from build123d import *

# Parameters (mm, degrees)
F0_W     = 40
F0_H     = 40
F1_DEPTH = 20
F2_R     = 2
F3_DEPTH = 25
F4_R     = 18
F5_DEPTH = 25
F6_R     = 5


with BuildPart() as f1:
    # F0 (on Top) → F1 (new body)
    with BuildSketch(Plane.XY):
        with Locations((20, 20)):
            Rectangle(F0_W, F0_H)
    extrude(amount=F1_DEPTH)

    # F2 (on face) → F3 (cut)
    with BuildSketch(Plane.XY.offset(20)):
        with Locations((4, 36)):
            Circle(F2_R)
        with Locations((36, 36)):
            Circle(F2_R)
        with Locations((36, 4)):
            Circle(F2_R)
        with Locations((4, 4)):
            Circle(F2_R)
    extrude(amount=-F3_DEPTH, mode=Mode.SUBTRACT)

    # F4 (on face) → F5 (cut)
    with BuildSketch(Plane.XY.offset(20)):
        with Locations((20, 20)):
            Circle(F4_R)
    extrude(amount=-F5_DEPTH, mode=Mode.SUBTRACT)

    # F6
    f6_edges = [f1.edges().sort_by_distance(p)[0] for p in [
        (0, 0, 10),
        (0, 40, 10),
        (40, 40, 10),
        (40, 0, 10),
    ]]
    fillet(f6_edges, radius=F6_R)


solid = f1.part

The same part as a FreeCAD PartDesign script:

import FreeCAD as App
import Part
import Sketcher
Q = App.Units.Quantity


def edges_at(feature, points):
    """Names of the edges that pass closest to the given points."""
    edges = feature.Shape.Edges
    near = lambda p: min(range(len(edges)), key=lambda i: edges[i].distToShape(Part.Vertex(*p))[0])
    return sorted({f"Edge{near(p) + 1}" for p in points})

doc = App.newDocument("Part")
params = doc.addObject("Spreadsheet::Sheet", "Params")
for row, (alias, value) in enumerate([
    ("sketch1_width", "40 mm"),
    ("pad1_length", "20 mm"),
    ("sketch2_diameter", "4 mm"),
    ("pocket1_length", "25 mm"),
    ("sketch3_diameter", "36 mm"),
    ("pocket2_length", "25 mm"),
    ("fillet_radius", "5 mm"),
], start=1):
    params.set(f"A{row}", alias)
    params.set(f"B{row}", "=" + value)
    params.setAlias(f"B{row}", alias)

body = doc.addObject("PartDesign::Body", "Body")

# Sketch on XY plane
sketch1 = body.newObject("Sketcher::SketchObject", "Sketch")
sketch1.AttachmentSupport = (doc.getObject("XY_Plane"), [""])
sketch1.MapMode = "FlatFace"
sketch1.addGeometry([
    Part.LineSegment(App.Vector(0, 40, 0), App.Vector(0, 0, 0)),
    Part.LineSegment(App.Vector(0, 0, 0), App.Vector(40, 0, 0)),
    Part.LineSegment(App.Vector(40, 0, 0), App.Vector(40, 40, 0)),
    Part.LineSegment(App.Vector(40, 40, 0), App.Vector(0, 40, 0)),
], False)
sketch1.addConstraint([
    Sketcher.Constraint("Coincident", 0, 2, 1, 1),
    Sketcher.Constraint("Coincident", 1, 2, 2, 1),
    Sketcher.Constraint("Coincident", 2, 2, 3, 1),
    Sketcher.Constraint("Coincident", 3, 2, 0, 1),
    Sketcher.Constraint("Vertical", 0),
    Sketcher.Constraint("Horizontal", 1),
    Sketcher.Constraint("Vertical", 2),
    Sketcher.Constraint("Horizontal", 3),
    Sketcher.Constraint("Coincident", 0, 2, -1, 1),
    Sketcher.Constraint("Equal", 3, 0),
    Sketcher.Constraint("DistanceX", 1, 1, 1, 2, Q("40 mm")),
])
sketch1.setExpression("Constraints[10]", "Params.sketch1_width")
pad1 = body.newObject("PartDesign::Pad", "Pad")
pad1.Profile = sketch1
pad1.setExpression("Length", "Params.pad1_length")

# Sketch on XY plane
sketch2 = body.newObject("Sketcher::SketchObject", "Sketch001")
sketch2.AttachmentSupport = (doc.getObject("XY_Plane"), [""])
sketch2.MapMode = "FlatFace"
sketch2.AttachmentOffset = App.Placement(App.Vector(0, 0, 20), App.Rotation())
sketch2.addGeometry([
    Part.Circle(App.Vector(4, 36, 0), App.Vector(0, 0, 1), 2),
    Part.Circle(App.Vector(36, 36, 0), App.Vector(0, 0, 1), 2),
    Part.Circle(App.Vector(36, 4, 0), App.Vector(0, 0, 1), 2),
    Part.Circle(App.Vector(4, 4, 0), App.Vector(0, 0, 1), 2),
], False)
sketch2.addConstraint([
    Sketcher.Constraint("Equal", 0, 1),
    Sketcher.Constraint("Equal", 1, 2),
    Sketcher.Constraint("Equal", 2, 3),
    Sketcher.Constraint("Horizontal", 0, 3, 1, 3),
    Sketcher.Constraint("Horizontal", 2, 3, 3, 3),
    Sketcher.Constraint("Vertical", 1, 3, 2, 3),
    Sketcher.Constraint("Vertical", 0, 3, 3, 3),
    Sketcher.Constraint("Diameter", 0, Q("4 mm")),
    Sketcher.Constraint("DistanceX", -1, 1, 0, 3, Q("4 mm")),
    Sketcher.Constraint("DistanceY", -1, 1, 0, 3, Q("36 mm")),
    Sketcher.Constraint("DistanceX", -1, 1, 1, 3, Q("36 mm")),
    Sketcher.Constraint("DistanceY", -1, 1, 2, 3, Q("4 mm")),
])
sketch2.setExpression("Constraints[7]", "Params.sketch2_diameter")
pocket1 = body.newObject("PartDesign::Pocket", "Pocket")
pocket1.Profile = sketch2
pocket1.setExpression("Length", "Params.pocket1_length")

# Sketch on XY plane
sketch3 = body.newObject("Sketcher::SketchObject", "Sketch002")
sketch3.AttachmentSupport = (doc.getObject("XY_Plane"), [""])
sketch3.MapMode = "FlatFace"
sketch3.AttachmentOffset = App.Placement(App.Vector(0, 0, 20), App.Rotation())
sketch3.addGeometry(Part.Circle(App.Vector(20, 20, 0), App.Vector(0, 0, 1), 18), False)
sketch3.addConstraint([
    Sketcher.Constraint("Diameter", 0, Q("36 mm")),
    Sketcher.Constraint("DistanceX", -1, 1, 0, 3, Q("20 mm")),
    Sketcher.Constraint("DistanceY", -1, 1, 0, 3, Q("20 mm")),
])
sketch3.setExpression("Constraints[0]", "Params.sketch3_diameter")
pocket2 = body.newObject("PartDesign::Pocket", "Pocket001")
pocket2.Profile = sketch3
pocket2.setExpression("Length", "Params.pocket2_length")
doc.recompute()

fillet = body.newObject("PartDesign::Fillet", "Fillet")
fillet.Base = (pocket2, edges_at(pocket2, [
    (0, 0, 10),
    (0, 40, 10),
    (40, 40, 10),
    (40, 0, 10),
]))
fillet.setExpression("Radius", "Params.fillet_radius")

doc.recompute()
